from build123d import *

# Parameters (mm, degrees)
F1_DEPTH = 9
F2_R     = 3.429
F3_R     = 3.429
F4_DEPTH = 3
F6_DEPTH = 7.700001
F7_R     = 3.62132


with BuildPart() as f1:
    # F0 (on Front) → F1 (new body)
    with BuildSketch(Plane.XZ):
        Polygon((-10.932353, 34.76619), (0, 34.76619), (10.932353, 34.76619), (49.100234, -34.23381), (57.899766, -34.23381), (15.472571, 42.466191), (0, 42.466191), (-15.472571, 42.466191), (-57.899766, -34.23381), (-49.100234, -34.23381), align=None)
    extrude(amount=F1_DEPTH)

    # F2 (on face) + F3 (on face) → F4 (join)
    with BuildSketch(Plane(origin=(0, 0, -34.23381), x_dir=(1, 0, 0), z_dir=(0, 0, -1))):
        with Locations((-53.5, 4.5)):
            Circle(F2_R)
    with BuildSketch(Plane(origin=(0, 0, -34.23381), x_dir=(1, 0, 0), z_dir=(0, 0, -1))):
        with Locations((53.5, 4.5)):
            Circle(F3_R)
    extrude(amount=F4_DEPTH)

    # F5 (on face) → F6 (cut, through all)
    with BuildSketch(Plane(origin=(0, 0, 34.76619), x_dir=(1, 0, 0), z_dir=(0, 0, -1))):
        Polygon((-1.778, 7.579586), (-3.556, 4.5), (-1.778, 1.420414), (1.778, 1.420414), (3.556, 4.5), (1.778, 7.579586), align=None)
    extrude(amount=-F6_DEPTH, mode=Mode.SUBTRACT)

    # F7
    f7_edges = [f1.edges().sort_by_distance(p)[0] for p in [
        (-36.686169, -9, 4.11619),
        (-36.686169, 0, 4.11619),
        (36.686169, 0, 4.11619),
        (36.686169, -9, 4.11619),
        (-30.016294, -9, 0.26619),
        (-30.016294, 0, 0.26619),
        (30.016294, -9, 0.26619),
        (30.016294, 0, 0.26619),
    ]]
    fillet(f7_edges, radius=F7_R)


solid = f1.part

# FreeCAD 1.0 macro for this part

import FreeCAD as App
import Part
import Sketcher
Q = App.Units.Quantity


def edges_at(feature, points):
    """Names of the edges that pass closest to the given points."""
    edges = feature.Shape.Edges
    near = lambda p: min(range(len(edges)), key=lambda i: edges[i].distToShape(Part.Vertex(*p))[0])
    return sorted({f"Edge{near(p) + 1}" for p in points})


def add_polygon(sketch, points):
    """Adds a closed chain of lines whose ends are joined by coincident constraints."""
    first, n = sketch.GeometryCount, len(points)
    for a, b in zip(points, points[1:] + points[:1]):
        sketch.addGeometry(Part.LineSegment(App.Vector(*a, 0), App.Vector(*b, 0)), False)
    for i in range(n):
        sketch.addConstraint(Sketcher.Constraint("Coincident", first + i, 2, first + (i + 1) % n, 1))

doc = App.newDocument("Part")
body = doc.addObject("PartDesign::Body", "Body")

# Sketch on XZ plane
sketch1 = body.newObject("Sketcher::SketchObject", "Sketch")
sketch1.AttachmentSupport = (doc.getObject("XZ_Plane"), [""])
sketch1.MapMode = "FlatFace"
add_polygon(sketch1, [(-10.932353, 34.76619), (10.932353, 34.76619), (49.100234, -34.23381), (57.899766, -34.23381), (15.472571, 42.466191), (-15.472571, 42.466191), (-57.899766, -34.23381), (-49.100234, -34.23381)])  # lines 0-7
sketch1.addConstraint(Sketcher.Constraint("Horizontal", 0))
sketch1.addConstraint(Sketcher.Constraint("Horizontal", 2))
sketch1.addConstraint(Sketcher.Constraint("Horizontal", 4))
sketch1.addConstraint(Sketcher.Constraint("Horizontal", 6))
sketch1.addConstraint(Sketcher.Constraint("Symmetric", 2, 2, 5, 2, -2))
sketch1.addConstraint(Sketcher.Constraint("Parallel", 1, 3))
sketch1.addConstraint(Sketcher.Constraint("Parallel", 5, 7))
sketch1.addConstraint(Sketcher.Constraint("Equal", 2, 6))
sketch1.addConstraint(Sketcher.Constraint("Equal", 3, 5))
sketch1.addConstraint(Sketcher.Constraint("DistanceY", 1, 2, 0, 2, Q("69 mm")))
sketch1.addConstraint(Sketcher.Constraint("DistanceX", 5, 2, 1, 2, Q("107 mm")))
sketch1.addConstraint(Sketcher.Constraint("DistanceY", 0, 2, 3, 2, Q("7.700001 mm")))
sketch1.addConstraint(Sketcher.Constraint("DistanceX", 2, 1, 2, 2, Q("8.799532 mm")))
sketch1.addConstraint(Sketcher.Constraint("Distance", 3, Q("87.652479 mm")))
sketch1.addConstraint(Sketcher.Constraint("DistanceY", -1, 1, 0, 2, Q("34.76619 mm")))
pad1 = body.newObject("PartDesign::Pad", "Pad")
pad1.Profile = sketch1
pad1.Length = 9

# Sketch on XY plane
sketch2 = body.newObject("Sketcher::SketchObject", "Sketch001")
sketch2.AttachmentSupport = (doc.getObject("XY_Plane"), [""])
sketch2.MapMode = "FlatFace"
sketch2.AttachmentOffset = App.Placement(App.Vector(0, 0, -34.23381), App.Rotation())
sketch2.addGeometry(Part.Circle(App.Vector(-53.5, -4.5, 0), App.Vector(0, 0, 1), 3.429), False)
sketch2.addGeometry(Part.Circle(App.Vector(53.5, -4.5, 0), App.Vector(0, 0, 1), 3.429), False)
sketch2.addConstraint(Sketcher.Constraint("Equal", 0, 1))
sketch2.addConstraint(Sketcher.Constraint("Symmetric", 0, 3, 1, 3, -2))
sketch2.addConstraint(Sketcher.Constraint("Diameter", 0, Q("6.858 mm")))
sketch2.addConstraint(Sketcher.Constraint("DistanceX", 0, 3, 1, 3, Q("107 mm")))
sketch2.addConstraint(Sketcher.Constraint("DistanceY", 0, 3, -1, 1, Q("4.5 mm")))
pad2 = body.newObject("PartDesign::Pad", "Pad001")
pad2.Profile = sketch2
pad2.Length = 3
pad2.Reversed = True

# Sketch on XY plane
sketch3 = body.newObject("Sketcher::SketchObject", "Sketch002")
sketch3.AttachmentSupport = (doc.getObject("XY_Plane"), [""])
sketch3.MapMode = "FlatFace"
sketch3.AttachmentOffset = App.Placement(App.Vector(0, 0, 34.76619), App.Rotation())
add_polygon(sketch3, [(-1.778, -7.579586), (-3.556, -4.5), (-1.778, -1.420414), (1.778, -1.420414), (3.556, -4.5), (1.778, -7.579586)])  # lines 0-5
sketch3.addConstraint(Sketcher.Constraint("Horizontal", 2))
sketch3.addConstraint(Sketcher.Constraint("Horizontal", 5))
sketch3.addConstraint(Sketcher.Constraint("Symmetric", 0, 2, 3, 2, -2))
sketch3.addConstraint(Sketcher.Constraint("Parallel", 0, 3))
sketch3.addConstraint(Sketcher.Constraint("Parallel", 1, 4))
sketch3.addConstraint(Sketcher.Constraint("Vertical", 2, 2, 4, 2))
sketch3.addConstraint(Sketcher.Constraint("Vertical", 1, 2, 5, 2))
sketch3.addConstraint(Sketcher.Constraint("Angle", 0, Q("120.000003 deg")))
sketch3.addConstraint(Sketcher.Constraint("DistanceY", 0, 2, -1, 1, Q("4.5 mm")))
sketch3.addConstraint(Sketcher.Constraint("DistanceX", 2, 1, 2, 2, Q("3.556 mm")))
sketch3.addConstraint(Sketcher.Constraint("Distance", 0, Q("3.556 mm")))
pocket1 = body.newObject("PartDesign::Pocket", "Pocket")
pocket1.Profile = sketch3
pocket1.Type = "ThroughAll"
pocket1.Reversed = True
doc.recompute()

fillet = body.newObject("PartDesign::Fillet", "Fillet")
fillet.Base = (pocket1, edges_at(pocket1, [
    (-36.686, -9, 4.116),
    (-36.686, 0, 4.116),
    (36.686, 0, 4.116),
    (36.686, -9, 4.116),
    (-30.016, -9, 0.266),
    (-30.016, 0, 0.266),
    (30.016, -9, 0.266),
    (30.016, 0, 0.266),
]))
fillet.Radius = 3.62132

doc.recompute()
